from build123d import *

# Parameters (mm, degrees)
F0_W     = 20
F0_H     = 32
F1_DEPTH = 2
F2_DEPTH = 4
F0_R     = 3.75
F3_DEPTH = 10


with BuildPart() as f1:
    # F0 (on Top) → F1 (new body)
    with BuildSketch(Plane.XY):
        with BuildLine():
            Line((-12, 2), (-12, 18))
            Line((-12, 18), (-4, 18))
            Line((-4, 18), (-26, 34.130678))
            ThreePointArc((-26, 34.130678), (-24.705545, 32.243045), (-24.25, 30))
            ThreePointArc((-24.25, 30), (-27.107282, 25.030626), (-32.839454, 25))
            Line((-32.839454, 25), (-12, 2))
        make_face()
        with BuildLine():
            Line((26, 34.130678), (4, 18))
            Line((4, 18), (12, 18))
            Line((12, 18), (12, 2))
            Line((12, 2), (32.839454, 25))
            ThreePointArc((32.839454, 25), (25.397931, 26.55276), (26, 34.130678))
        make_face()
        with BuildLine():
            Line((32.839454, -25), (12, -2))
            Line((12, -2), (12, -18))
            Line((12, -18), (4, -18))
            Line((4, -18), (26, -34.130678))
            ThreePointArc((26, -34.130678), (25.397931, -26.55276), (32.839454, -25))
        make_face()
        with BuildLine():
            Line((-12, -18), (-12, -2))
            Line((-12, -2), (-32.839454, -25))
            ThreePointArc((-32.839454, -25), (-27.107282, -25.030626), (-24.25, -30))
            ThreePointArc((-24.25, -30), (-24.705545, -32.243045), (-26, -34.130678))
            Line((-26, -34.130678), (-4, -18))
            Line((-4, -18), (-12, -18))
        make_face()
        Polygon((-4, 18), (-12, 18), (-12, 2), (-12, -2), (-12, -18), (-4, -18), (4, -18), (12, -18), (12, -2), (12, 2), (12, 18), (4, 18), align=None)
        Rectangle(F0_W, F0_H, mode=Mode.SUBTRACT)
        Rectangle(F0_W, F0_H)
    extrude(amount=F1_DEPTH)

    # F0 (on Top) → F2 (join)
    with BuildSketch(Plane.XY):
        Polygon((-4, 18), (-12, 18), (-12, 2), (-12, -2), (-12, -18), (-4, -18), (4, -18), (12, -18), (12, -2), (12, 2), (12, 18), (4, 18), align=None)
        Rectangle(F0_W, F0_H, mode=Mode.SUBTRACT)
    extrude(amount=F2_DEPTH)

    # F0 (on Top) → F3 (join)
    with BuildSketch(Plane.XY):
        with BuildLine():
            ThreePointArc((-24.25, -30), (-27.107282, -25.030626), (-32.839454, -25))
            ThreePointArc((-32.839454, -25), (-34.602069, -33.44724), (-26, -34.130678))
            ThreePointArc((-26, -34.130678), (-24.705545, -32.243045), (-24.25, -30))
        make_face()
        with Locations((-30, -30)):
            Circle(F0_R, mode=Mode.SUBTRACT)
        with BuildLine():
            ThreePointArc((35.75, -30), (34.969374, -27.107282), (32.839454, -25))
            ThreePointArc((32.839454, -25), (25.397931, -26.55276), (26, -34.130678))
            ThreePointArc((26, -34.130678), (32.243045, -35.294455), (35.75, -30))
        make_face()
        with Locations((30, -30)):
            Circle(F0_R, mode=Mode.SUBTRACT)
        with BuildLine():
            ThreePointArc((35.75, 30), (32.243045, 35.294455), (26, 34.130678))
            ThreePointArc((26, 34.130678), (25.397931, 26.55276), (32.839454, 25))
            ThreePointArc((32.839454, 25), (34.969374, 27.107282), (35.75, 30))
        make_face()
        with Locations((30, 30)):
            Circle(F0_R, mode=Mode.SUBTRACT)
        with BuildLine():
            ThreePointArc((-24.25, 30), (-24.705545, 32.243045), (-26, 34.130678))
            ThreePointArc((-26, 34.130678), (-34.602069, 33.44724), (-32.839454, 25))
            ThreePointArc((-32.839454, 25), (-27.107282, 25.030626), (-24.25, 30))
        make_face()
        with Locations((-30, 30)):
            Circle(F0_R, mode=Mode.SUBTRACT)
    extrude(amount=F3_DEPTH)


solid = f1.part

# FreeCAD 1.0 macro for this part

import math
import FreeCAD as App
import Part
import Sketcher
Q = App.Units.Quantity

doc = App.newDocument("Part")
params = doc.addObject("Spreadsheet::Sheet", "Params")
for row, (alias, value) in enumerate([
    ("sketch1_width", "8 mm"),
    ("sketch1_height", "4 mm"),
    ("sketch1_radius", "5.75 mm"),
    ("pad1_length", "2 mm"),
    ("sketch2_width", "24 mm"),
    ("sketch2_width2", "20 mm"),
    ("sketch2_height", "36 mm"),
    ("sketch2_height2", "32 mm"),
    ("pad2_length", "4 mm"),
    ("sketch3_diameter", "7.5 mm"),
    ("sketch3_radius", "5.75 mm"),
    ("pad3_length", "10 mm"),
], start=1):
    params.set(f"A{row}", alias)
    params.set(f"B{row}", "=" + value)
    params.setAlias(f"B{row}", alias)

body = doc.addObject("PartDesign::Body", "Body")

# Sketch on XY plane
sketch1 = doc.addObject("Sketcher::SketchObject", "Sketch")
body.addObject(sketch1)
sketch1.AttachmentSupport = (doc.XY_Plane, [""])
sketch1.MapMode = "FlatFace"
sketch1.addGeometry(Part.LineSegment(App.Vector(-4, 18, 0), App.Vector(-26, 34.1, 0)), False)
sketch1.addGeometry(Part.ArcOfCircle(Part.Circle(App.Vector(-30, 30, 0), App.Vector(0, 0, 1), 5.7), math.radians(0), math.radians(46)), False)
sketch1.addGeometry(Part.ArcOfCircle(Part.Circle(App.Vector(-30, 30, 0), App.Vector(0, 0, 1), 5.8), math.radians(-120), math.radians(0)), False)
sketch1.addGeometry(Part.LineSegment(App.Vector(-32.8, 25, 0), App.Vector(-12, 2, 0)), False)
sketch1.addGeometry(Part.LineSegment(App.Vector(-12, 2, 0), App.Vector(-12, -2, 0)), False)
sketch1.addGeometry(Part.LineSegment(App.Vector(-12, -2, 0), App.Vector(-32.8, -25, 0)), False)
sketch1.addGeometry(Part.ArcOfCircle(Part.Circle(App.Vector(-30, -30, 0), App.Vector(0, 0, 1), 5.8), math.radians(0), math.radians(120)), False)
sketch1.addGeometry(Part.ArcOfCircle(Part.Circle(App.Vector(-30, -30, 0), App.Vector(0, 0, 1), 5.7), math.radians(-46), math.radians(0)), False)
sketch1.addGeometry(Part.LineSegment(App.Vector(-26, -34.1, 0), App.Vector(-4, -18, 0)), False)
sketch1.addGeometry(Part.LineSegment(App.Vector(-4, -18, 0), App.Vector(4, -18, 0)), False)
sketch1.addGeometry(Part.LineSegment(App.Vector(4, -18, 0), App.Vector(26, -34.1, 0)), False)
sketch1.addGeometry(Part.ArcOfCircle(Part.Circle(App.Vector(30, -30, 0), App.Vector(0, 0, 1), 5.7), math.radians(60), math.radians(226)), False)
sketch1.addGeometry(Part.LineSegment(App.Vector(32.8, -25, 0), App.Vector(12, -2, 0)), False)
sketch1.addGeometry(Part.LineSegment(App.Vector(12, -2, 0), App.Vector(12, 2, 0)), False)
sketch1.addGeometry(Part.LineSegment(App.Vector(12, 2, 0), App.Vector(32.8, 25, 0)), False)
sketch1.addGeometry(Part.ArcOfCircle(Part.Circle(App.Vector(30, 30, 0), App.Vector(0, 0, 1), 5.7), math.radians(134), math.radians(300)), False)
sketch1.addGeometry(Part.LineSegment(App.Vector(26, 34.1, 0), App.Vector(4, 18, 0)), False)
sketch1.addGeometry(Part.LineSegment(App.Vector(4, 18, 0), App.Vector(-4, 18, 0)), False)
sketch1.addConstraint(Sketcher.Constraint("Coincident", 0, 2, 1, 2))
sketch1.addConstraint(Sketcher.Constraint("Tangent", 1, 1, 2, 2))
sketch1.addConstraint(Sketcher.Constraint("Coincident", 2, 1, 3, 1))
sketch1.addConstraint(Sketcher.Constraint("Coincident", 3, 2, 4, 1))
sketch1.addConstraint(Sketcher.Constraint("Coincident", 4, 2, 5, 1))
sketch1.addConstraint(Sketcher.Constraint("Coincident", 5, 2, 6, 2))
sketch1.addConstraint(Sketcher.Constraint("Tangent", 6, 1, 7, 2))
sketch1.addConstraint(Sketcher.Constraint("Coincident", 7, 1, 8, 1))
sketch1.addConstraint(Sketcher.Constraint("Coincident", 8, 2, 9, 1))
sketch1.addConstraint(Sketcher.Constraint("Coincident", 9, 2, 10, 1))
sketch1.addConstraint(Sketcher.Constraint("Coincident", 10, 2, 11, 2))
sketch1.addConstraint(Sketcher.Constraint("Coincident", 11, 1, 12, 1))
sketch1.addConstraint(Sketcher.Constraint("Coincident", 12, 2, 13, 1))
sketch1.addConstraint(Sketcher.Constraint("Coincident", 13, 2, 14, 1))
sketch1.addConstraint(Sketcher.Constraint("Coincident", 14, 2, 15, 2))
sketch1.addConstraint(Sketcher.Constraint("Coincident", 15, 1, 16, 1))
sketch1.addConstraint(Sketcher.Constraint("Coincident", 16, 2, 17, 1))
sketch1.addConstraint(Sketcher.Constraint("Coincident", 17, 2, 0, 1))
sketch1.addConstraint(Sketcher.Constraint("Vertical", 4))
sketch1.addConstraint(Sketcher.Constraint("Horizontal", 9))
sketch1.addConstraint(Sketcher.Constraint("Vertical", 13))
sketch1.addConstraint(Sketcher.Constraint("Horizontal", 17))
sketch1.addConstraint(Sketcher.Constraint("Equal", 2, 6))
sketch1.addConstraint(Sketcher.Constraint("Equal", 1, 7))
sketch1.addConstraint(Sketcher.Constraint("Equal", 6, 11))
sketch1.addConstraint(Sketcher.Constraint("Equal", 11, 15))
sketch1.addConstraint(Sketcher.Constraint("Symmetric", 1, 3, 11, 3, -1, 1))
sketch1.addConstraint(Sketcher.Constraint("Symmetric", 6, 3, 15, 3, -1, 1))
sketch1.addConstraint(Sketcher.Constraint("Symmetric", 0, 2, 10, 2, -1, 1))
sketch1.addConstraint(Sketcher.Constraint("Symmetric", 3, 2, 12, 2, -1, 1))
sketch1.addConstraint(Sketcher.Constraint("Symmetric", 8, 2, 16, 2, -1, 1))
sketch1.addConstraint(Sketcher.Constraint("Symmetric", 6, 3, 11, 3, -2))
sketch1.addConstraint(Sketcher.Constraint("Parallel", 0, 10))
sketch1.addConstraint(Sketcher.Constraint("Parallel", 3, 12))
sketch1.addConstraint(Sketcher.Constraint("Parallel", 5, 14))
sketch1.addConstraint(Sketcher.Constraint("Parallel", 8, 16))
sketch1.addConstraint(Sketcher.Constraint("Horizontal", 15, 3, 1, 1))
sketch1.addConstraint(Sketcher.Constraint("Horizontal", 11, 3, 6, 1))
sketch1.addConstraint(Sketcher.Constraint("Horizontal", 7, 1, 10, 2))
sketch1.addConstraint(Sketcher.Constraint("Horizontal", 5, 2, 11, 1))
sketch1.addConstraint(Sketcher.Constraint("Horizontal", 4, 2, 12, 2))
sketch1.addConstraint(Sketcher.Constraint("Horizontal", 3, 2, 13, 2))
sketch1.addConstraint(Sketcher.Constraint("Vertical", 9, 2, 16, 2))
sketch1.addConstraint(Sketcher.Constraint("DistanceX", 9, 1, 9, 2, Q("8 mm")))
sketch1.addConstraint(Sketcher.Constraint("DistanceY", 4, 2, 4, 1, Q("4 mm")))
sketch1.addConstraint(Sketcher.Constraint("Radius", 2, Q("5.75 mm")))
sketch1.addConstraint(Sketcher.Constraint("DistanceY", -1, 1, 1, 3, Q("30.000002 mm")))
sketch1.addConstraint(Sketcher.Constraint("DistanceX", 2, 3, -1, 1, Q("30 mm")))
sketch1.addConstraint(Sketcher.Constraint("DistanceX", 0, 2, -1, 1, Q("26 mm")))
sketch1.addConstraint(Sketcher.Constraint("DistanceY", -1, 1, 2, 1, Q("25 mm")))
sketch1.addConstraint(Sketcher.Constraint("DistanceX", 3, 2, -1, 1, Q("12 mm")))
sketch1.addConstraint(Sketcher.Constraint("DistanceY", 8, 2, -1, 1, Q("18 mm")))
sketch1.setExpression("Constraints[43]", "Params.sketch1_width")
sketch1.setExpression("Constraints[44]", "Params.sketch1_height")
sketch1.setExpression("Constraints[45]", "Params.sketch1_radius")
pad1 = doc.addObject("PartDesign::Pad", "Pad")
body.addObject(pad1)
pad1.Profile = sketch1
pad1.setExpression("Length", "Params.pad1_length")

# Sketch on XY plane
sketch2 = doc.addObject("Sketcher::SketchObject", "Sketch001")
body.addObject(sketch2)
sketch2.AttachmentSupport = (doc.XY_Plane, [""])
sketch2.MapMode = "FlatFace"
sketch2.addGeometry(Part.LineSegment(App.Vector(-12, 18, 0), App.Vector(-12, -18, 0)), False)
sketch2.addGeometry(Part.LineSegment(App.Vector(-12, -18, 0), App.Vector(12, -18, 0)), False)
sketch2.addGeometry(Part.LineSegment(App.Vector(12, -18, 0), App.Vector(12, 18, 0)), False)
sketch2.addGeometry(Part.LineSegment(App.Vector(12, 18, 0), App.Vector(-12, 18, 0)), False)
sketch2.addGeometry(Part.LineSegment(App.Vector(10, -16, 0), App.Vector(-10, -16, 0)), False)
sketch2.addGeometry(Part.LineSegment(App.Vector(-10, -16, 0), App.Vector(-10, 16, 0)), False)
sketch2.addGeometry(Part.LineSegment(App.Vector(-10, 16, 0), App.Vector(10, 16, 0)), False)
sketch2.addGeometry(Part.LineSegment(App.Vector(10, 16, 0), App.Vector(10, -16, 0)), False)
sketch2.addConstraint(Sketcher.Constraint("Coincident", 0, 2, 1, 1))
sketch2.addConstraint(Sketcher.Constraint("Coincident", 1, 2, 2, 1))
sketch2.addConstraint(Sketcher.Constraint("Coincident", 2, 2, 3, 1))
sketch2.addConstraint(Sketcher.Constraint("Coincident", 3, 2, 0, 1))
sketch2.addConstraint(Sketcher.Constraint("Coincident", 4, 2, 5, 1))
sketch2.addConstraint(Sketcher.Constraint("Coincident", 5, 2, 6, 1))
sketch2.addConstraint(Sketcher.Constraint("Coincident", 6, 2, 7, 1))
sketch2.addConstraint(Sketcher.Constraint("Coincident", 7, 2, 4, 1))
sketch2.addConstraint(Sketcher.Constraint("Vertical", 0))
sketch2.addConstraint(Sketcher.Constraint("Horizontal", 1))
sketch2.addConstraint(Sketcher.Constraint("Vertical", 2))
sketch2.addConstraint(Sketcher.Constraint("Horizontal", 3))
sketch2.addConstraint(Sketcher.Constraint("Horizontal", 4))
sketch2.addConstraint(Sketcher.Constraint("Vertical", 5))
sketch2.addConstraint(Sketcher.Constraint("Horizontal", 6))
sketch2.addConstraint(Sketcher.Constraint("Vertical", 7))
sketch2.addConstraint(Sketcher.Constraint("Symmetric", 0, 2, 2, 2, -1, 1))
sketch2.addConstraint(Sketcher.Constraint("Symmetric", 4, 2, 6, 2, -1, 1))
sketch2.addConstraint(Sketcher.Constraint("DistanceX", 1, 1, 1, 2, Q("24 mm")))
sketch2.addConstraint(Sketcher.Constraint("DistanceX", 4, 2, 4, 1, Q("20 mm")))
sketch2.addConstraint(Sketcher.Constraint("DistanceY", 0, 2, 0, 1, Q("36 mm")))
sketch2.addConstraint(Sketcher.Constraint("DistanceY", 5, 1, 5, 2, Q("32 mm")))
sketch2.setExpression("Constraints[18]", "Params.sketch2_width")
sketch2.setExpression("Constraints[19]", "Params.sketch2_width2")
sketch2.setExpression("Constraints[20]", "Params.sketch2_height")
sketch2.setExpression("Constraints[21]", "Params.sketch2_height2")
pad2 = doc.addObject("PartDesign::Pad", "Pad001")
body.addObject(pad2)
pad2.Profile = sketch2
pad2.setExpression("Length", "Params.pad2_length")

# Sketch on XY plane
sketch3 = doc.addObject("Sketcher::SketchObject", "Sketch002")
body.addObject(sketch3)
sketch3.AttachmentSupport = (doc.XY_Plane, [""])
sketch3.MapMode = "FlatFace"
sketch3.addGeometry(Part.ArcOfCircle(Part.Circle(App.Vector(-30, -30, 0), App.Vector(0, 0, 1), 5.8), math.radians(0), math.radians(120)), False)
sketch3.addGeometry(Part.ArcOfCircle(Part.Circle(App.Vector(-30, -30, 0), App.Vector(0, 0, 1), 5.8), math.radians(120), math.radians(314)), False)
sketch3.addGeometry(Part.ArcOfCircle(Part.Circle(App.Vector(-30, -30, 0), App.Vector(0, 0, 1), 5.7), math.radians(-46), math.radians(0)), False)
sketch3.addGeometry(Part.Circle(App.Vector(-30, -30, 0), App.Vector(0, 0, 1), 3.8), False)
sketch3.addGeometry(Part.ArcOfCircle(Part.Circle(App.Vector(30, -30, 0), App.Vector(0, 0, 1), 5.8), math.radians(0), math.radians(60)), False)
sketch3.addGeometry(Part.ArcOfCircle(Part.Circle(App.Vector(30, -30, 0), App.Vector(0, 0, 1), 5.7), math.radians(60), math.radians(226)), False)
sketch3.addGeometry(Part.ArcOfCircle(Part.Circle(App.Vector(30, -30, 0), App.Vector(0, 0, 1), 5.7), math.radians(-134), math.radians(0)), False)
sketch3.addGeometry(Part.Circle(App.Vector(30, -30, 0), App.Vector(0, 0, 1), 3.8), False)
sketch3.addGeometry(Part.ArcOfCircle(Part.Circle(App.Vector(30, 30, 0), App.Vector(0, 0, 1), 5.7), math.radians(0), math.radians(134)), False)
sketch3.addGeometry(Part.ArcOfCircle(Part.Circle(App.Vector(30, 30, 0), App.Vector(0, 0, 1), 5.7), math.radians(134), math.radians(300)), False)
sketch3.addGeometry(Part.ArcOfCircle(Part.Circle(App.Vector(30, 30, 0), App.Vector(0, 0, 1), 5.8), math.radians(-60), math.radians(0)), False)
sketch3.addGeometry(Part.Circle(App.Vector(30, 30, 0), App.Vector(0, 0, 1), 3.8), False)
sketch3.addGeometry(Part.ArcOfCircle(Part.Circle(App.Vector(-30, 30, 0), App.Vector(0, 0, 1), 5.7), math.radians(0), math.radians(46)), False)
sketch3.addGeometry(Part.ArcOfCircle(Part.Circle(App.Vector(-30, 30, 0), App.Vector(0, 0, 1), 5.8), math.radians(46), math.radians(240)), False)
sketch3.addGeometry(Part.ArcOfCircle(Part.Circle(App.Vector(-30, 30, 0), App.Vector(0, 0, 1), 5.8), math.radians(-120), math.radians(0)), False)
sketch3.addGeometry(Part.Circle(App.Vector(-30, 30, 0), App.Vector(0, 0, 1), 3.8), False)
sketch3.addConstraint(Sketcher.Constraint("Tangent", 0, 2, 1, 1))
sketch3.addConstraint(Sketcher.Constraint("Tangent", 1, 2, 2, 1))
sketch3.addConstraint(Sketcher.Constraint("Tangent", 2, 2, 0, 1))
sketch3.addConstraint(Sketcher.Constraint("Tangent", 4, 2, 5, 1))
sketch3.addConstraint(Sketcher.Constraint("Tangent", 5, 2, 6, 1))
sketch3.addConstraint(Sketcher.Constraint("Tangent", 6, 2, 4, 1))
sketch3.addConstraint(Sketcher.Constraint("Tangent", 8, 2, 9, 1))
sketch3.addConstraint(Sketcher.Constraint("Tangent", 9, 2, 10, 1))
sketch3.addConstraint(Sketcher.Constraint("Tangent", 10, 2, 8, 1))
sketch3.addConstraint(Sketcher.Constraint("Tangent", 12, 2, 13, 1))
sketch3.addConstraint(Sketcher.Constraint("Tangent", 13, 2, 14, 1))
sketch3.addConstraint(Sketcher.Constraint("Tangent", 14, 2, 12, 1))
sketch3.addConstraint(Sketcher.Constraint("Coincident", 3, 3, 0, 3))
sketch3.addConstraint(Sketcher.Constraint("Coincident", 7, 3, 4, 3))
sketch3.addConstraint(Sketcher.Constraint("Coincident", 11, 3, 8, 3))
sketch3.addConstraint(Sketcher.Constraint("Coincident", 15, 3, 12, 3))
sketch3.addConstraint(Sketcher.Constraint("Equal", 0, 4))
sketch3.addConstraint(Sketcher.Constraint("Equal", 3, 7))
sketch3.addConstraint(Sketcher.Constraint("Equal", 6, 8))
sketch3.addConstraint(Sketcher.Constraint("Equal", 7, 11))
sketch3.addConstraint(Sketcher.Constraint("Equal", 2, 12))
sketch3.addConstraint(Sketcher.Constraint("Equal", 11, 15))
sketch3.addConstraint(Sketcher.Constraint("Symmetric", 0, 3, 8, 3, -1, 1))
sketch3.addConstraint(Sketcher.Constraint("Symmetric", 4, 3, 12, 3, -1, 1))
sketch3.addConstraint(Sketcher.Constraint("Symmetric", 0, 3, 4, 3, -2))
sketch3.addConstraint(Sketcher.Constraint("Horizontal", 7, 3, 2, 2))
sketch3.addConstraint(Sketcher.Constraint("Horizontal", 0, 2, 4, 2))
sketch3.addConstraint(Sketcher.Constraint("Horizontal", 1, 2, 5, 2))
sketch3.addConstraint(Sketcher.Constraint("Horizontal", 2, 2, 6, 2))
sketch3.addConstraint(Sketcher.Constraint("Horizontal", 15, 3, 10, 2))
sketch3.addConstraint(Sketcher.Constraint("Horizontal", 8, 2, 12, 2))
sketch3.addConstraint(Sketcher.Constraint("Horizontal", 9, 2, 13, 2))
sketch3.addConstraint(Sketcher.Constraint("Horizontal", 10, 2, 14, 2))
sketch3.addConstraint(Sketcher.Constraint("Vertical", 5, 2, 8, 2))
sketch3.addConstraint(Sketcher.Constraint("Vertical", 4, 2, 9, 2))
sketch3.addConstraint(Sketcher.Constraint("Diameter", 3, Q("7.5 mm")))
sketch3.addConstraint(Sketcher.Constraint("Radius", 0, Q("5.75 mm")))
sketch3.addConstraint(Sketcher.Constraint("DistanceX", 0, 3, -1, 1, Q("30 mm")))
sketch3.addConstraint(Sketcher.Constraint("DistanceY", 0, 3, -1, 1, Q("30.000001 mm")))
sketch3.addConstraint(Sketcher.Constraint("DistanceY", 0, 2, -1, 1, Q("25 mm")))
sketch3.addConstraint(Sketcher.Constraint("DistanceX", 1, 2, -1, 1, Q("26 mm")))
sketch3.setExpression("Constraints[35]", "Params.sketch3_diameter")
sketch3.setExpression("Constraints[36]", "Params.sketch3_radius")
pad3 = doc.addObject("PartDesign::Pad", "Pad002")
body.addObject(pad3)
pad3.Profile = sketch3
pad3.setExpression("Length", "Params.pad3_length")

doc.recompute()
